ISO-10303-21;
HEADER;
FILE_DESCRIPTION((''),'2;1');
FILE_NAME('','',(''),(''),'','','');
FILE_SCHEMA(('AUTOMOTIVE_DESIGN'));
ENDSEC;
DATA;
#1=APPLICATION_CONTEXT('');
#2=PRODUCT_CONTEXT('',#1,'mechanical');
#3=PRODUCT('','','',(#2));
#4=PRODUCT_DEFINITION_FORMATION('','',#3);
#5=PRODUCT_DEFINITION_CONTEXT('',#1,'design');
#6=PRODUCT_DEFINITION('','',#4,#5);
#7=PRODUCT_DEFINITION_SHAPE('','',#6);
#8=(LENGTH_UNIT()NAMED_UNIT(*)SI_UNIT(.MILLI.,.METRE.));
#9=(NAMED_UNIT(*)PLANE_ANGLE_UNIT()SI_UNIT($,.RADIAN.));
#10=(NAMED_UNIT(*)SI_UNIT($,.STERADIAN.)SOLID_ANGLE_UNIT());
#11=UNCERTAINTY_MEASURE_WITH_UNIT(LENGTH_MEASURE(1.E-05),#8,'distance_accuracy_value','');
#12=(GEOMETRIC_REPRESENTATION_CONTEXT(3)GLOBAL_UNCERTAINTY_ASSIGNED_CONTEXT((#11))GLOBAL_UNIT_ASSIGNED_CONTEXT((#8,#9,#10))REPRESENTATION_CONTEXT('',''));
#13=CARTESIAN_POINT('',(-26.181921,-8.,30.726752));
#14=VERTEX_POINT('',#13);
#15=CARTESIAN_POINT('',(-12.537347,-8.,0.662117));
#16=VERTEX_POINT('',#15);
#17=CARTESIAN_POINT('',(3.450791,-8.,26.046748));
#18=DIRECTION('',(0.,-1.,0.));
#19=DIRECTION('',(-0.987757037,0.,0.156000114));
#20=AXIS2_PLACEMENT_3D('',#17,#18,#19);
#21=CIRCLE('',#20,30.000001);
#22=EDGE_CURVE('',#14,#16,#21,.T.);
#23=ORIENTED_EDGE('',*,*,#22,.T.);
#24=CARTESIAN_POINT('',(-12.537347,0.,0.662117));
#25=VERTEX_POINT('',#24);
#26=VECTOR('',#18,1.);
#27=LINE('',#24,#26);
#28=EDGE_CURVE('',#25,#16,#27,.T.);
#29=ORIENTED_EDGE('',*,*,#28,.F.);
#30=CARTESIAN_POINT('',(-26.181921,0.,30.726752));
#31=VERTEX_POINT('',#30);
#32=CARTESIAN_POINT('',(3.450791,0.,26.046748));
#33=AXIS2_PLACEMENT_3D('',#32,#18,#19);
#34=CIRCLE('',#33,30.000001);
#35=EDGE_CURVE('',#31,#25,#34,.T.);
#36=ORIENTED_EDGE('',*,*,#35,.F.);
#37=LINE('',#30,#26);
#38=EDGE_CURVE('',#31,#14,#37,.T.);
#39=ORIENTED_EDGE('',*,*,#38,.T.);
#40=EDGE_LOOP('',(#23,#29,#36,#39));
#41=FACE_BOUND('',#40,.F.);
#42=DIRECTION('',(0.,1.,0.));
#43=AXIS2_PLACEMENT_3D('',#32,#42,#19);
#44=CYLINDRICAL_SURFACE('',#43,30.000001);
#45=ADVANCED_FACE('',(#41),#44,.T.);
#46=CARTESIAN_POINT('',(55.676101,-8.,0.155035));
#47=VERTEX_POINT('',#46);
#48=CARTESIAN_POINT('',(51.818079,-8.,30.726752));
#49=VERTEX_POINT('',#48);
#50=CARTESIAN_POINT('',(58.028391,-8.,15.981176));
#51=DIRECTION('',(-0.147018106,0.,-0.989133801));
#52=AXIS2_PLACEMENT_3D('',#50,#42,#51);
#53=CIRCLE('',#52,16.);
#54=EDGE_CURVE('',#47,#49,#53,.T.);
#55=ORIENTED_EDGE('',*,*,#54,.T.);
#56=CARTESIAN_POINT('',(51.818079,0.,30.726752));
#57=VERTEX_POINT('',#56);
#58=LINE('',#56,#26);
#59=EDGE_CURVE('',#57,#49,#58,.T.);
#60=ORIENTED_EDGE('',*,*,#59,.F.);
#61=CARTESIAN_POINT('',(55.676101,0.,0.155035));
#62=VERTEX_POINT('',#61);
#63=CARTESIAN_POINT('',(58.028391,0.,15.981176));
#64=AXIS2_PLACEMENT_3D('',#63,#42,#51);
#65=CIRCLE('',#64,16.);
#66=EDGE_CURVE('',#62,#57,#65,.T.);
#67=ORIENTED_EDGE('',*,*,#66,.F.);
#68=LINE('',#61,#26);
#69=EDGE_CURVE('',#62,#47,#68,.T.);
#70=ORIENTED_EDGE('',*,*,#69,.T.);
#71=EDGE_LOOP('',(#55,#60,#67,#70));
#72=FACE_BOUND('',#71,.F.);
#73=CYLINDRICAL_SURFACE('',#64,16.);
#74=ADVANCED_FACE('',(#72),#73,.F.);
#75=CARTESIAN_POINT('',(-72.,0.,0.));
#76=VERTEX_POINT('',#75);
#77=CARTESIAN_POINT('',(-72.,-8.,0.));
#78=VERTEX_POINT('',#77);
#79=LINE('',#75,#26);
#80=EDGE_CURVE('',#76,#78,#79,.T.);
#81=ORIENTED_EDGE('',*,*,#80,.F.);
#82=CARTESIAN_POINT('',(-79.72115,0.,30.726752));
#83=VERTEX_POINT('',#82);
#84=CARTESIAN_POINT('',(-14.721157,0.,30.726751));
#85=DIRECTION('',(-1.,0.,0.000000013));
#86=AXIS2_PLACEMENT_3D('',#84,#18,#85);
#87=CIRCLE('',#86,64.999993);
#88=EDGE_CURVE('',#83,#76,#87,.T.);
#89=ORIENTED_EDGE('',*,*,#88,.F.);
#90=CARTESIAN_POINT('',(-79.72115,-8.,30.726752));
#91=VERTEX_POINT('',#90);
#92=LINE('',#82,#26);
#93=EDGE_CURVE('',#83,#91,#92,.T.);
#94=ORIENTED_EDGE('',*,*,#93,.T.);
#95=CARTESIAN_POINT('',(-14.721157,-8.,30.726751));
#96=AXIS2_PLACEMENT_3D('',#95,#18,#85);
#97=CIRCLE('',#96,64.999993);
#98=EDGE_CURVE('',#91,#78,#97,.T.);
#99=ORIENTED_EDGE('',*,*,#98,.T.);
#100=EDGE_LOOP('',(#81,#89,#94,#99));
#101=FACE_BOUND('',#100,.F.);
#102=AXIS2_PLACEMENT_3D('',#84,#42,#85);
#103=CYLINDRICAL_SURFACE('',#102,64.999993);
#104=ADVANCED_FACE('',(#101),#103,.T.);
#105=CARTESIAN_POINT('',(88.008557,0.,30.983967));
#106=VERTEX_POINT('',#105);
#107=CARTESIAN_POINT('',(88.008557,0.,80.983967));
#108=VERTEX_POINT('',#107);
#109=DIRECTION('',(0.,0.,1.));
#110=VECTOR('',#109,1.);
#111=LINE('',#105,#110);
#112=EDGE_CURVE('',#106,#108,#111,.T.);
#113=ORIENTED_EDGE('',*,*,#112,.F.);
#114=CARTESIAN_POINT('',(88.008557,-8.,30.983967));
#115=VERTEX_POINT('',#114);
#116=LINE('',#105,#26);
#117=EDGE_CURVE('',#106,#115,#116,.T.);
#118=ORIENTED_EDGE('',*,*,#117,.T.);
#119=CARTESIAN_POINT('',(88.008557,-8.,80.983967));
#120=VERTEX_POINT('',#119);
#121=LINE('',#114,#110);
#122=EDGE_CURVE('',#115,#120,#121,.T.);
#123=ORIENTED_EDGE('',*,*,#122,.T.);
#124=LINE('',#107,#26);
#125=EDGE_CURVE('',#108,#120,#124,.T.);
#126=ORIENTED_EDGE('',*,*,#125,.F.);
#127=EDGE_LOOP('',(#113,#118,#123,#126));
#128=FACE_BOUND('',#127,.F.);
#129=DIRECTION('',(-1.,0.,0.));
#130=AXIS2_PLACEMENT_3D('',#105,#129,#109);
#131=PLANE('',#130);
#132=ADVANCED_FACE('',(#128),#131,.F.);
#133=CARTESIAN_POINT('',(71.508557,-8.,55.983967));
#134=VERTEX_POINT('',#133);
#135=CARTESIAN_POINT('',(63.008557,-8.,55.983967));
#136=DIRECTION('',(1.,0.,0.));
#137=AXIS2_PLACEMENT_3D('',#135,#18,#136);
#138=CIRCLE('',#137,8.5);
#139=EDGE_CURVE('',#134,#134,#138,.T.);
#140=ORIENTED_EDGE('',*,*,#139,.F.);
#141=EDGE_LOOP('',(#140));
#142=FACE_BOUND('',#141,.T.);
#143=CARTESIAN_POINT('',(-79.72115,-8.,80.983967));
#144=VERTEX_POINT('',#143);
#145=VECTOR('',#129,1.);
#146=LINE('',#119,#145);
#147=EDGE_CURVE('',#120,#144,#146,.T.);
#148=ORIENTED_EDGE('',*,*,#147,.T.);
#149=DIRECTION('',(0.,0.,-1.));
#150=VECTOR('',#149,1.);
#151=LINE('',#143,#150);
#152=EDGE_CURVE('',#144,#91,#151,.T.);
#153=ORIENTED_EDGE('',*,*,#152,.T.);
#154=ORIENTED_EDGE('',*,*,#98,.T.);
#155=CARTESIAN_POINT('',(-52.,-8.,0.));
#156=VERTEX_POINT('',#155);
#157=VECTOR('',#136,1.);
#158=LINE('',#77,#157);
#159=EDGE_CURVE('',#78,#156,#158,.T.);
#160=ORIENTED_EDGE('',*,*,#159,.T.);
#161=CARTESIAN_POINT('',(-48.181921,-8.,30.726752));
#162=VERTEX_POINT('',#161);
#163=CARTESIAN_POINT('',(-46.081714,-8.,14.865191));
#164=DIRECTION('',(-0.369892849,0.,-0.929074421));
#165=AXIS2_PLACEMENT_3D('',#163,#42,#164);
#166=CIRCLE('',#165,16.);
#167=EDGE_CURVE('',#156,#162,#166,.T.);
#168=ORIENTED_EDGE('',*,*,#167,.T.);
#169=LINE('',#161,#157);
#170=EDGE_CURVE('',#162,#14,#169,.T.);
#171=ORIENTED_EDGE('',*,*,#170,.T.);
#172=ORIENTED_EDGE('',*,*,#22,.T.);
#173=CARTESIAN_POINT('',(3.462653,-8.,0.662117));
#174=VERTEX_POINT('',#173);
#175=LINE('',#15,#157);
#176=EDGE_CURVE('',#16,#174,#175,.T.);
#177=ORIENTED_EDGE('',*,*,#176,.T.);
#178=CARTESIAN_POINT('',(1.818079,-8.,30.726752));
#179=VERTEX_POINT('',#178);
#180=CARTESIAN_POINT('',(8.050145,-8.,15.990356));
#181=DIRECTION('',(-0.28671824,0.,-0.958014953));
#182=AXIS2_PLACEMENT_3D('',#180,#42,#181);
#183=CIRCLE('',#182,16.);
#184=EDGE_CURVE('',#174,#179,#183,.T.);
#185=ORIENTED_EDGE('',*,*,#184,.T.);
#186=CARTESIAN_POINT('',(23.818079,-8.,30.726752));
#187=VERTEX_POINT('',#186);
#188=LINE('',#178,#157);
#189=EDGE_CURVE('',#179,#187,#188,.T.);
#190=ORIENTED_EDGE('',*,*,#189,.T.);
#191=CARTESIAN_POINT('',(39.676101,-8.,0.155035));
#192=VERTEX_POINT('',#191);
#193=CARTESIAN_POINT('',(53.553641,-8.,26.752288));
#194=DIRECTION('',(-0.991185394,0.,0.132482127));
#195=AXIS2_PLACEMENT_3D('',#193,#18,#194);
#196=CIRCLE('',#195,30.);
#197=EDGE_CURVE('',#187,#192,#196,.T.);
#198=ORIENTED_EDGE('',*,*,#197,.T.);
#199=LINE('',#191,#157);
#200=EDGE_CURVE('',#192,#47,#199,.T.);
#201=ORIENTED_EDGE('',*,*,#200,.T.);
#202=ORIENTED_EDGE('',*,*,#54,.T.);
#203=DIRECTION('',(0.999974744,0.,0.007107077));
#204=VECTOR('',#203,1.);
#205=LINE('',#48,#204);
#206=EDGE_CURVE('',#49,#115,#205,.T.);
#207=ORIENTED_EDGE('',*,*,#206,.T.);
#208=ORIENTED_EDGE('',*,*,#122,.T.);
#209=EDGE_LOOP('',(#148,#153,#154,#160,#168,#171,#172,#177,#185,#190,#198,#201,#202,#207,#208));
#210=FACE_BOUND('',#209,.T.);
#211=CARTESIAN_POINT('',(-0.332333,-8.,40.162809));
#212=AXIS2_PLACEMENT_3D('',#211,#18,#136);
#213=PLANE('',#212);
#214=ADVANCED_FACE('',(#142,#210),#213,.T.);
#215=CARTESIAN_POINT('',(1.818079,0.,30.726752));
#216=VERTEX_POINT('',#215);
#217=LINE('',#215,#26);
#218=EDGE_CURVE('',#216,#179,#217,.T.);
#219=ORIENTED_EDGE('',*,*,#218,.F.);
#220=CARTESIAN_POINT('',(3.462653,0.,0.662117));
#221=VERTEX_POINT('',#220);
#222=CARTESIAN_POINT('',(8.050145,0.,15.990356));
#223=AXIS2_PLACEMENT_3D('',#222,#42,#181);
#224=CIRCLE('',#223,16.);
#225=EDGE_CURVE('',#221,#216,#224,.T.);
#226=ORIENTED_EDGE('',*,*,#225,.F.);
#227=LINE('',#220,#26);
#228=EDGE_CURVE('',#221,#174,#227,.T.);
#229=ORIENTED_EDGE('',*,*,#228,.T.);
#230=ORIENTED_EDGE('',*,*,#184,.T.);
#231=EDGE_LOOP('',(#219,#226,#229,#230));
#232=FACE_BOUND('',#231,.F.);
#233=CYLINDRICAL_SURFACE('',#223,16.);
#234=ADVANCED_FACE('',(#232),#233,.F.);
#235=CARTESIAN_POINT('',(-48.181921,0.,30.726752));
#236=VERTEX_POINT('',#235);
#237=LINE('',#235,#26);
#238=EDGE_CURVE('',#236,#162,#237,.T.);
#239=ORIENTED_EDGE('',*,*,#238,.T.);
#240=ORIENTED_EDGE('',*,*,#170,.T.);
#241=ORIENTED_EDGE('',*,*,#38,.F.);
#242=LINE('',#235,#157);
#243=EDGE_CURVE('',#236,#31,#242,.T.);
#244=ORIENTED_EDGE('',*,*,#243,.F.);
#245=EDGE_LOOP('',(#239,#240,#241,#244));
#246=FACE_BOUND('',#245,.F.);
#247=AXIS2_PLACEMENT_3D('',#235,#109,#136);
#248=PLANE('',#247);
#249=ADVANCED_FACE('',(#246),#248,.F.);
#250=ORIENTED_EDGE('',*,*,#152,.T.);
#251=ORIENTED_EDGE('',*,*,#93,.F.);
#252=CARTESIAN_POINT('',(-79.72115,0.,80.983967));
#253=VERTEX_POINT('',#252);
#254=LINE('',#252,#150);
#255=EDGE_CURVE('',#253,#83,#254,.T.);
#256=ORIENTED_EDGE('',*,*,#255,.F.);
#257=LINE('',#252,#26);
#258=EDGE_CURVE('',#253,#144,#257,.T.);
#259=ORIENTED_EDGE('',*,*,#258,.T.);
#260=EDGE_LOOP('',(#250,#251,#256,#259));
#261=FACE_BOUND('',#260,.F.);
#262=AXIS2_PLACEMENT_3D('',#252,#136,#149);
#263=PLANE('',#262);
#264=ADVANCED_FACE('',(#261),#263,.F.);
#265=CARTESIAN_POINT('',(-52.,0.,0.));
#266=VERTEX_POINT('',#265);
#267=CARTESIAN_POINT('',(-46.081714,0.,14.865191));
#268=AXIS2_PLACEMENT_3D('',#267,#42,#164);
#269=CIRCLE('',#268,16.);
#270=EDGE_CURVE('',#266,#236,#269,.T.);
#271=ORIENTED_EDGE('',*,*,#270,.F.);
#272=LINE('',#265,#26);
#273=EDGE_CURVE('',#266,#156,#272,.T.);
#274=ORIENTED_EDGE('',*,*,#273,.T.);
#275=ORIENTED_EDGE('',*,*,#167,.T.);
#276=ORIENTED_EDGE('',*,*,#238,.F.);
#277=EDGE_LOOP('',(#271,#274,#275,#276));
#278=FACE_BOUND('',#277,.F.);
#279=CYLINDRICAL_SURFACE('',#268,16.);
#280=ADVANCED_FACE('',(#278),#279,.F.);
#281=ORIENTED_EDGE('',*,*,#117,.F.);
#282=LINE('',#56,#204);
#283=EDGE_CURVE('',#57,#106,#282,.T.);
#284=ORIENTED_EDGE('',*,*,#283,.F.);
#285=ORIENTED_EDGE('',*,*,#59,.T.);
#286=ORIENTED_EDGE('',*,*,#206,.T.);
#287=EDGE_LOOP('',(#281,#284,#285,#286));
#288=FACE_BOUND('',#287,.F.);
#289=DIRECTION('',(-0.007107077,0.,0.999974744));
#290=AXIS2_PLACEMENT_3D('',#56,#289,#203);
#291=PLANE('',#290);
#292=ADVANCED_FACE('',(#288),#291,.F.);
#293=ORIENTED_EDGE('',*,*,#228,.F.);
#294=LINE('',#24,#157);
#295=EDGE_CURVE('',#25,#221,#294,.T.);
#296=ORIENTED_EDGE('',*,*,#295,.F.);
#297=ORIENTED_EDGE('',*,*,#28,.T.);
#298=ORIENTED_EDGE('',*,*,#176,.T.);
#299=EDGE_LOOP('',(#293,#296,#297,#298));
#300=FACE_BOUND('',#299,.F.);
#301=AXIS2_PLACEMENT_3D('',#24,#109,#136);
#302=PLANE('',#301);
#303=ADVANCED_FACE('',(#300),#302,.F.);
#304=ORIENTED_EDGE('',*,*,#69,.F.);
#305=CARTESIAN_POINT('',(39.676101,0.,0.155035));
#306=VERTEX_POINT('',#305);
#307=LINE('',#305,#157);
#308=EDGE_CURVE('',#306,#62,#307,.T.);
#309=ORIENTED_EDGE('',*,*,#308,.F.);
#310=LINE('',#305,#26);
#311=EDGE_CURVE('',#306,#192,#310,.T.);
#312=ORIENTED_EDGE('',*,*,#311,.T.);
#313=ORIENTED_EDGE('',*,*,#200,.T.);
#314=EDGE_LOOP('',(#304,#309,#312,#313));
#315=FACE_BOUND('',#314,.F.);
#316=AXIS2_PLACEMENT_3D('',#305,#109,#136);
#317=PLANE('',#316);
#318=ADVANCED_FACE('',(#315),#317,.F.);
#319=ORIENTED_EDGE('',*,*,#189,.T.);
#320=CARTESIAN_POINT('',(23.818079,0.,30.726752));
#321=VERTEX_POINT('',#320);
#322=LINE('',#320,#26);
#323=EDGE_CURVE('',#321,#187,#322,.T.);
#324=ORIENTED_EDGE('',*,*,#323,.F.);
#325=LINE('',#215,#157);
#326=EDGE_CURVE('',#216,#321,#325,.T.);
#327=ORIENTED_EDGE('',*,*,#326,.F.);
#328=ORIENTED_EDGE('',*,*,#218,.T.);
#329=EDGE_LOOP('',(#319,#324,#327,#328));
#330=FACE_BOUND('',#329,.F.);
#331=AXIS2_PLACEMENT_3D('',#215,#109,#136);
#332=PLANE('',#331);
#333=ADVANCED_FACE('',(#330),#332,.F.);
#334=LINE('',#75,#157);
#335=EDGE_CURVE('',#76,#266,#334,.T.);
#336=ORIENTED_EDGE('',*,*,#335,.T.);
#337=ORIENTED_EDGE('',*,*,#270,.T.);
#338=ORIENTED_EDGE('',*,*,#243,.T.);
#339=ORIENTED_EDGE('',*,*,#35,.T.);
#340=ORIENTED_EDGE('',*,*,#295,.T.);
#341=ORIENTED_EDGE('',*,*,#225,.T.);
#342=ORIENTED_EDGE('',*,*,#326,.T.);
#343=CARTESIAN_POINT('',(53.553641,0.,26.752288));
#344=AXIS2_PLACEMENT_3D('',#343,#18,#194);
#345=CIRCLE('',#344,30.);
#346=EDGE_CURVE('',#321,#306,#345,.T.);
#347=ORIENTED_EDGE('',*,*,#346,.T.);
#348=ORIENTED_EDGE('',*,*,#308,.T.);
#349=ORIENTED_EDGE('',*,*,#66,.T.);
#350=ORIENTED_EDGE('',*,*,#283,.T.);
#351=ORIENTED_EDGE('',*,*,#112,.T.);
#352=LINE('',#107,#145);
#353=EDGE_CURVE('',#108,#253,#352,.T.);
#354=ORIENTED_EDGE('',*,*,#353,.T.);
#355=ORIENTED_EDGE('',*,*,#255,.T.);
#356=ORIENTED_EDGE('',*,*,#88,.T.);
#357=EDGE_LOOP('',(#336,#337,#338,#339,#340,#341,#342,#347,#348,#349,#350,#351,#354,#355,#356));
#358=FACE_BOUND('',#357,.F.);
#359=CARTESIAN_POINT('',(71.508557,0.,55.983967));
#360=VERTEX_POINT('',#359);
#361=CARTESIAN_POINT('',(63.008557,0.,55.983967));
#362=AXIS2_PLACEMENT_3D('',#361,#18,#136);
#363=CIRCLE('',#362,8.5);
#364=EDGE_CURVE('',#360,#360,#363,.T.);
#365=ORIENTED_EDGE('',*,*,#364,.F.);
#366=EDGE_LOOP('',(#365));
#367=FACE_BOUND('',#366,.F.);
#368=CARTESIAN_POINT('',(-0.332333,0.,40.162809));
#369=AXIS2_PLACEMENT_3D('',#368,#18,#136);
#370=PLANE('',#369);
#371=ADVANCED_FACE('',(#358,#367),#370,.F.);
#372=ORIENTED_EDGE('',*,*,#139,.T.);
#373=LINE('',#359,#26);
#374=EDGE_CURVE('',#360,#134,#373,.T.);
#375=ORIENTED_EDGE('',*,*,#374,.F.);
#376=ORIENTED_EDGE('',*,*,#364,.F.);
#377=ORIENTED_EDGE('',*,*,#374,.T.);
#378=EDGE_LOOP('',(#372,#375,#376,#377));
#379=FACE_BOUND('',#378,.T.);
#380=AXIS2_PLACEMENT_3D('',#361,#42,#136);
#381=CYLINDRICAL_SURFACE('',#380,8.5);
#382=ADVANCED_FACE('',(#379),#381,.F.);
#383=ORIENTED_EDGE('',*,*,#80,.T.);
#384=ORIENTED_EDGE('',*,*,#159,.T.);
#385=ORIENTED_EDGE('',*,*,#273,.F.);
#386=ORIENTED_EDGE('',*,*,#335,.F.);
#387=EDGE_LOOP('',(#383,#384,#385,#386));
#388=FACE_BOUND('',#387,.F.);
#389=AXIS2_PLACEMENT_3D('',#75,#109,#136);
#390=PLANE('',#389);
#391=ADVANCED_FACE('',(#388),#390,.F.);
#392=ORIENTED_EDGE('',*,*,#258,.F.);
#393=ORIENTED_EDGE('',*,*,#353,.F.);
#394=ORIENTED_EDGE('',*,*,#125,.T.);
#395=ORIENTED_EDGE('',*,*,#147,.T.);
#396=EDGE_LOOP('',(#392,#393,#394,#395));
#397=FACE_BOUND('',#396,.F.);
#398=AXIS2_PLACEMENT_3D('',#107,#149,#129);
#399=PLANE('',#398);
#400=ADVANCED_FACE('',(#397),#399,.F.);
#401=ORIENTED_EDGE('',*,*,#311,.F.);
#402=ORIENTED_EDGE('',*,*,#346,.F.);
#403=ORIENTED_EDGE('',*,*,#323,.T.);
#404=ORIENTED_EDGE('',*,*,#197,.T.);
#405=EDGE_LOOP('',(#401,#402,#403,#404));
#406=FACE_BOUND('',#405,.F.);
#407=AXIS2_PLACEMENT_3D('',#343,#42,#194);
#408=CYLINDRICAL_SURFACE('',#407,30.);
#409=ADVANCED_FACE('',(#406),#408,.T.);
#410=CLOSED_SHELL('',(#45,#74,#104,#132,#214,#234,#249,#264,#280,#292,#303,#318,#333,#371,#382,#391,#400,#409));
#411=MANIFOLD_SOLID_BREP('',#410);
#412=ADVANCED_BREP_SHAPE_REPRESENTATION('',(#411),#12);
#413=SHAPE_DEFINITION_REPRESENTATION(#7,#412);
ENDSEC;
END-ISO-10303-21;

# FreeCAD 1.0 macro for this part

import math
import FreeCAD as App
import Part
import Sketcher
from FreeCAD import Vector

doc = App.newDocument("Part")
body = doc.addObject("PartDesign::Body", "Body")

sketch1 = doc.addObject("Sketcher::SketchObject", "Sketch")
body.addObject(sketch1)
sketch1.AttachmentSupport = (doc.XZ_Plane, [""])
sketch1.MapMode = "FlatFace"
sketch1.addGeometry([
    Part.LineSegment(Vector(88.008557, 80.983967, 0), Vector(-79.72115, 80.983967, 0)),
    Part.LineSegment(Vector(-79.72115, 80.983967, 0), Vector(-79.72115, 30.726752, 0)),
    Part.ArcOfCircle(Part.Circle(Vector(-14.721157, 30.726751, 0), Vector(0, 0, 1), 64.999993), math.radians(179.999999), math.radians(208.210957)),
    Part.LineSegment(Vector(-72, 0, 0), Vector(-52, 0, 0)),
    Part.ArcOfCircle(Part.Circle(Vector(-46.081714, 14.865191, 0), Vector(0, 0, 1), 16), math.radians(97.542577), math.radians(248.290991)),
    Part.LineSegment(Vector(-48.181921, 30.726752, 0), Vector(-26.181921, 30.726752, 0)),
    Part.ArcOfCircle(Part.Circle(Vector(3.450791, 26.046748, 0), Vector(0, 0, 1), 30.000001), math.radians(171.025196), math.radians(237.795826)),
    Part.LineSegment(Vector(-12.537347, 0.662117, 0), Vector(3.462653, 0.662117, 0)),
    Part.ArcOfCircle(Part.Circle(Vector(8.050145, 15.990356, 0), Vector(0, 0, 1), 16), math.radians(112.923647), math.radians(253.338417)),
    Part.LineSegment(Vector(1.818079, 30.726752, 0), Vector(23.818079, 30.726752, 0)),
    Part.ArcOfCircle(Part.Circle(Vector(53.553641, 26.752288, 0), Vector(0, 0, 1), 30), math.radians(172.386951), math.radians(242.445983)),
    Part.LineSegment(Vector(39.676101, 0.155035, 0), Vector(55.676101, 0.155035, 0)),
    Part.ArcOfCircle(Part.Circle(Vector(58.028391, 15.981176, 0), Vector(0, 0, 1), 16), math.radians(112.839093), math.radians(261.545839)),
    Part.LineSegment(Vector(51.818079, 30.726752, 0), Vector(88.008557, 30.983967, 0)),
    Part.LineSegment(Vector(88.008557, 30.983967, 0), Vector(88.008557, 80.983967, 0)),
    Part.Circle(Vector(63.008557, 55.983967, 0), Vector(0, 0, 1), 8.5),
], False)
sketch1.addConstraint([
    Sketcher.Constraint("Coincident", 0, 2, 1, 1),
    Sketcher.Constraint("Coincident", 1, 2, 2, 1),
    Sketcher.Constraint("Coincident", 2, 2, 3, 1),
    Sketcher.Constraint("Coincident", 3, 2, 4, 2),
    Sketcher.Constraint("Coincident", 4, 1, 5, 1),
    Sketcher.Constraint("Coincident", 5, 2, 6, 1),
    Sketcher.Constraint("Coincident", 6, 2, 7, 1),
    Sketcher.Constraint("Coincident", 7, 2, 8, 2),
    Sketcher.Constraint("Coincident", 8, 1, 9, 1),
    Sketcher.Constraint("Coincident", 9, 2, 10, 1),
    Sketcher.Constraint("Coincident", 10, 2, 11, 1),
    Sketcher.Constraint("Coincident", 11, 2, 12, 2),
    Sketcher.Constraint("Coincident", 12, 1, 13, 1),
    Sketcher.Constraint("Coincident", 13, 2, 14, 1),
    Sketcher.Constraint("Coincident", 14, 2, 0, 1),
    Sketcher.Constraint("Horizontal", 0),
    Sketcher.Constraint("Vertical", 1),
    Sketcher.Constraint("Horizontal", 3),
    Sketcher.Constraint("Horizontal", 5),
    Sketcher.Constraint("Horizontal", 7),
    Sketcher.Constraint("Horizontal", 9),
    Sketcher.Constraint("Horizontal", 11),
    Sketcher.Constraint("Vertical", 14),
    Sketcher.Constraint("PointOnObject", 2, 2, -1),
    Sketcher.Constraint("Diameter", 15, 17.0),
    Sketcher.Constraint("Radius", 4, 16.0),
    Sketcher.Constraint("Radius", 6, 30.000001),
    Sketcher.Constraint("Radius", 8, 16.0),
    Sketcher.Constraint("Radius", 10, 30.0),
    Sketcher.Constraint("Radius", 12, 16.0),
    Sketcher.Constraint("DistanceX", 3, 1, 3, 2, 20.0),
    Sketcher.Constraint("DistanceX", 5, 1, 5, 2, 22.0),
    Sketcher.Constraint("DistanceX", 7, 1, 7, 2, 16.0),
    Sketcher.Constraint("DistanceX", 9, 1, 9, 2, 22.0),
    Sketcher.Constraint("DistanceX", 11, 1, 11, 2, 16.0),
    Sketcher.Constraint("DistanceY", 14, 1, 14, 2, 50.0),
    Sketcher.Constraint("DistanceX", 2, 2, -1, 1, 72.0),
    Sketcher.Constraint("DistanceX", 5, 2, 8, 1, 28.0),
    Sketcher.Constraint("DistanceX", 9, 2, 12, 1, 28.0),
    Sketcher.Constraint("DistanceX", 15, 3, 13, 2, 25.0),
    Sketcher.Constraint("DistanceY", 13, 2, 15, 3, 25.0),
    Sketcher.Constraint("Radius", 2, 64.999993),
    Sketcher.Constraint("DistanceX", -1, 1, 10, 2, 39.676101),
    Sketcher.Constraint("DistanceX", 2, 3, 8, 3, 22.771302),
    Sketcher.Constraint("DistanceX", 6, 3, 12, 3, 54.577599),
    Sketcher.Constraint("DistanceX", 0, 2, 0, 1, 167.729707),
    Sketcher.Constraint("DistanceY", 1, 2, 1, 1, 50.257215),
    Sketcher.Constraint("DistanceY", -1, 1, 2, 3, 30.726751),
    Sketcher.Constraint("DistanceY", -1, 1, 4, 3, 14.865191),
    Sketcher.Constraint("DistanceX", -1, 1, 6, 3, 3.450791),
    Sketcher.Constraint("DistanceY", -1, 1, 6, 3, 26.046748),
    Sketcher.Constraint("DistanceX", -1, 1, 10, 3, 53.553641),
    Sketcher.Constraint("DistanceY", -1, 1, 10, 3, 26.752288),
    Sketcher.Constraint("DistanceY", 10, 3, 15, 3, 29.231679),
])
pad1 = doc.addObject("PartDesign::Pad", "Pad")
body.addObject(pad1)
pad1.Profile = sketch1
pad1.Length = 8

doc.recompute()
